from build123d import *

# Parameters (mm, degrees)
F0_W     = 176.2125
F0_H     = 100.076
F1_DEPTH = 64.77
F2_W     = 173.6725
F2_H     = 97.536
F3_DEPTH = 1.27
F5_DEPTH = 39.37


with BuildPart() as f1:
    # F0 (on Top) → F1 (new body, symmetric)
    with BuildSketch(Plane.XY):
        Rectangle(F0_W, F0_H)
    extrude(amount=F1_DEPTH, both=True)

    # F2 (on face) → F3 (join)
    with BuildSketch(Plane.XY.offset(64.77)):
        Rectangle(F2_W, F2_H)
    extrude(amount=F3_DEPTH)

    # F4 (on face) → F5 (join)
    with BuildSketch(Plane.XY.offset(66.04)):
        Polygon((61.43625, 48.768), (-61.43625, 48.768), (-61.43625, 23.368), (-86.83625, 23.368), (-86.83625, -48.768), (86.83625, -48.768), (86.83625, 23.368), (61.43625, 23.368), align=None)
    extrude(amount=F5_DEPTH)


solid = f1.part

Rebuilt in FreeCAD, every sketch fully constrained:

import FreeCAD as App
import Part
import Sketcher
Q = App.Units.Quantity


def add_polygon(sketch, points):
    """Adds a closed chain of lines whose ends are joined by coincident constraints."""
    first, n = sketch.GeometryCount, len(points)
    for a, b in zip(points, points[1:] + points[:1]):
        sketch.addGeometry(Part.LineSegment(App.Vector(*a, 0), App.Vector(*b, 0)), False)
    for i in range(n):
        sketch.addConstraint(Sketcher.Constraint("Coincident", first + i, 2, first + (i + 1) % n, 1))

doc = App.newDocument("Part")
body = doc.addObject("PartDesign::Body", "Body")

# Sketch on XY plane
sketch1 = doc.addObject("Sketcher::SketchObject", "Sketch")
body.addObject(sketch1)
sketch1.AttachmentSupport = (doc.XY_Plane, [""])
sketch1.MapMode = "FlatFace"
add_polygon(sketch1, [(-88.10625, 50.038), (-88.10625, -50.038), (88.10625, -50.038), (88.10625, 50.038)])  # lines 0-3
sketch1.addConstraint(Sketcher.Constraint("Vertical", 0))
sketch1.addConstraint(Sketcher.Constraint("Horizontal", 1))
sketch1.addConstraint(Sketcher.Constraint("Vertical", 2))
sketch1.addConstraint(Sketcher.Constraint("Horizontal", 3))
sketch1.addConstraint(Sketcher.Constraint("Symmetric", 0, 2, 2, 2, -1, 1))
sketch1.addConstraint(Sketcher.Constraint("DistanceY", 0, 2, 0, 1, Q("3.94 in")))
sketch1.addConstraint(Sketcher.Constraint("DistanceX", 1, 1, 1, 2, Q("6.9375 in")))
pad1 = doc.addObject("PartDesign::Pad", "Pad")
body.addObject(pad1)
pad1.Profile = sketch1
pad1.Length = Q("5.1 in")
pad1.Midplane = True

# Sketch on XY plane
sketch2 = doc.addObject("Sketcher::SketchObject", "Sketch001")
body.addObject(sketch2)
sketch2.AttachmentSupport = (doc.XY_Plane, [""])
sketch2.MapMode = "FlatFace"
sketch2.AttachmentOffset = App.Placement(App.Vector(0, 0, 2.55 * 25.4), App.Rotation())
add_polygon(sketch2, [(-86.83625, 48.768), (-86.83625, -48.768), (86.83625, -48.768), (86.83625, 48.768)])  # lines 0-3
sketch2.addConstraint(Sketcher.Constraint("Vertical", 0))
sketch2.addConstraint(Sketcher.Constraint("Horizontal", 1))
sketch2.addConstraint(Sketcher.Constraint("Vertical", 2))
sketch2.addConstraint(Sketcher.Constraint("Horizontal", 3))
sketch2.addConstraint(Sketcher.Constraint("Symmetric", 0, 2, 2, 2, -1, 1))
sketch2.addConstraint(Sketcher.Constraint("DistanceY", 0, 2, 0, 1, Q("3.84 in")))
sketch2.addConstraint(Sketcher.Constraint("DistanceX", 1, 1, 1, 2, Q("6.8375 in")))
pad2 = doc.addObject("PartDesign::Pad", "Pad001")
body.addObject(pad2)
pad2.Profile = sketch2
pad2.Length = Q("0.05 in")

# Sketch on XY plane
sketch3 = doc.addObject("Sketcher::SketchObject", "Sketch002")
body.addObject(sketch3)
sketch3.AttachmentSupport = (doc.XY_Plane, [""])
sketch3.MapMode = "FlatFace"
sketch3.AttachmentOffset = App.Placement(App.Vector(0, 0, 2.6 * 25.4), App.Rotation())
add_polygon(sketch3, [(61.43625, 48.768), (-61.43625, 48.768), (-61.43625, 23.368), (-86.83625, 23.368), (-86.83625, -48.768), (86.83625, -48.768), (86.83625, 23.368), (61.43625, 23.368)])  # lines 0-7
sketch3.addConstraint(Sketcher.Constraint("Horizontal", 0))
sketch3.addConstraint(Sketcher.Constraint("Vertical", 1))
sketch3.addConstraint(Sketcher.Constraint("Horizontal", 2))
sketch3.addConstraint(Sketcher.Constraint("Vertical", 3))
sketch3.addConstraint(Sketcher.Constraint("Horizontal", 4))
sketch3.addConstraint(Sketcher.Constraint("Vertical", 5))
sketch3.addConstraint(Sketcher.Constraint("Horizontal", 6))
sketch3.addConstraint(Sketcher.Constraint("Vertical", 7))
sketch3.addConstraint(Sketcher.Constraint("Symmetric", 2, 2, 5, 2, -2))
sketch3.addConstraint(Sketcher.Constraint("Equal", 2, 6))
sketch3.addConstraint(Sketcher.Constraint("Equal", 6, 1))
sketch3.addConstraint(Sketcher.Constraint("DistanceX", 2, 2, 2, 1, Q("1 in")))
sketch3.addConstraint(Sketcher.Constraint("DistanceY", 3, 2, 3, 1, Q("2.84 in")))
sketch3.addConstraint(Sketcher.Constraint("DistanceY", -1, 1, 0, 2, Q("1.92 in")))
sketch3.addConstraint(Sketcher.Constraint("DistanceX", 0, 2, 0, 1, Q("4.8375 in")))
pad3 = doc.addObject("PartDesign::Pad", "Pad002")
body.addObject(pad3)
pad3.Profile = sketch3
pad3.Length = Q("1.55 in")

doc.recompute()
